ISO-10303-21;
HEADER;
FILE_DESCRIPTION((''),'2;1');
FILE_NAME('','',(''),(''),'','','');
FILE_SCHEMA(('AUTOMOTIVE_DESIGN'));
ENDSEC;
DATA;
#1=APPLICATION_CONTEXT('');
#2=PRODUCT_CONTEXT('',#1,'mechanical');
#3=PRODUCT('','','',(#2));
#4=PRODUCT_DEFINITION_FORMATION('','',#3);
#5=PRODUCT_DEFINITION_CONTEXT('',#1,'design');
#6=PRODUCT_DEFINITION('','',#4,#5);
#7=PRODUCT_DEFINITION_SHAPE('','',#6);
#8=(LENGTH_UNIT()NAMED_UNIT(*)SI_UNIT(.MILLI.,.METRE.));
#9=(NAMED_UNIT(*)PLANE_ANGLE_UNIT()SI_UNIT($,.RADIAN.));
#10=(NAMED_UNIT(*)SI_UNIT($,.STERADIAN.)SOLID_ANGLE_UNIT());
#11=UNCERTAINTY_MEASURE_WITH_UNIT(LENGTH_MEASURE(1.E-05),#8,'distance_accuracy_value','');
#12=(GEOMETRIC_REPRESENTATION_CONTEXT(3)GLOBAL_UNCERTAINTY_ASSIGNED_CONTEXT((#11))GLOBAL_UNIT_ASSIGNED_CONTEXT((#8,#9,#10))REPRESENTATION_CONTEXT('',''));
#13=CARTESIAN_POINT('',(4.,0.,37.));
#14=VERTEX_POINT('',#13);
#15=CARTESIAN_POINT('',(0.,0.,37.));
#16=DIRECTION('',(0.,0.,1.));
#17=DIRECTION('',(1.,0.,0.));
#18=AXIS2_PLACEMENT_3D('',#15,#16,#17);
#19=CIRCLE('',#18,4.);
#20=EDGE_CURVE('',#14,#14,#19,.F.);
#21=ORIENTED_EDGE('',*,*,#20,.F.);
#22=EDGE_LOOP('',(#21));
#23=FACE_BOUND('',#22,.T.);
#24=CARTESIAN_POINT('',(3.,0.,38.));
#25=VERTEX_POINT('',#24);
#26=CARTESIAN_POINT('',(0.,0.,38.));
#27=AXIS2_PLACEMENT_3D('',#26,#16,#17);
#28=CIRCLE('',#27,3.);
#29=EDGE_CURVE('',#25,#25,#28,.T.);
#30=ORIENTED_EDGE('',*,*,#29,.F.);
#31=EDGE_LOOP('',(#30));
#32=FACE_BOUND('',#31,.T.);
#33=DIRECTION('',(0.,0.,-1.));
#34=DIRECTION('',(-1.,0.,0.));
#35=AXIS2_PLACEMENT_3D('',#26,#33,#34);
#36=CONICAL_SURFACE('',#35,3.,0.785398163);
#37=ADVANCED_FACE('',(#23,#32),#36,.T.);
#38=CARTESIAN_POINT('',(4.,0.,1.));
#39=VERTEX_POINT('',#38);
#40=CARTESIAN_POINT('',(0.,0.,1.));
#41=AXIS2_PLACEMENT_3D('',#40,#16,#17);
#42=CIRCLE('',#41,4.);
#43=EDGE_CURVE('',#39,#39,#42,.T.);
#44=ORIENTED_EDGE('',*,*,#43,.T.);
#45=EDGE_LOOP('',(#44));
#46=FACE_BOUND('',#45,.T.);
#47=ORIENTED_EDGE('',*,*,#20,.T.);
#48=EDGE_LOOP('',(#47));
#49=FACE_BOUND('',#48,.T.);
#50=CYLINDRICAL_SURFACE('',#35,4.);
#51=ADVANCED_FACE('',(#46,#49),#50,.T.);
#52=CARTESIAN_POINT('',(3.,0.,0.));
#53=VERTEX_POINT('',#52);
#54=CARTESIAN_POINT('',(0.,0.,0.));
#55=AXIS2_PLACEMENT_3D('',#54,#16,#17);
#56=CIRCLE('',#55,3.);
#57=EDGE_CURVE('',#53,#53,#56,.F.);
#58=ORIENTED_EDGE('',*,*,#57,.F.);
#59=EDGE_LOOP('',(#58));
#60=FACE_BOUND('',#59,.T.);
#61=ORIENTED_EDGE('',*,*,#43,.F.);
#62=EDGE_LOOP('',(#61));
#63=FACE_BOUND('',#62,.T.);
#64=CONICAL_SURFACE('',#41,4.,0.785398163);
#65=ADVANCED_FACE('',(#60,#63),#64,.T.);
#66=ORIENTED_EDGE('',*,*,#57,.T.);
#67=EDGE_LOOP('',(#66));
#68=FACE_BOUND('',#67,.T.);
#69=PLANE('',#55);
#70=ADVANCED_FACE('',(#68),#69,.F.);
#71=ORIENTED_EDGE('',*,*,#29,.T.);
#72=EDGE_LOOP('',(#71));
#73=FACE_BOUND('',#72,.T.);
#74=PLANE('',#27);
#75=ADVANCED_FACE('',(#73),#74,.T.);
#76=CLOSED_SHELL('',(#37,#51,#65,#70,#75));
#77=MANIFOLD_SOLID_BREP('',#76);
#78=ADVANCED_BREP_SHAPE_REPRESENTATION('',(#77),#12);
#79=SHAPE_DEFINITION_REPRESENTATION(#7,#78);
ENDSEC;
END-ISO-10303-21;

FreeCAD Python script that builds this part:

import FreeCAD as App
import Part
import Sketcher

V = App.Vector


def edges_at(feature, points):
    """Names of the edges that pass closest to the given points."""
    edges = feature.Shape.Edges
    near = lambda p: min(range(len(edges)), key=lambda i: edges[i].distToShape(Part.Vertex(*p))[0])
    return sorted({f"Edge{near(p) + 1}" for p in points})

doc = App.newDocument("Part")
body = doc.addObject("PartDesign::Body", "Body")

# Sketch on XY plane
sketch1 = body.newObject("Sketcher::SketchObject", "Sketch")
sketch1.AttachmentSupport = (doc.getObject("XY_Plane"), [""])
sketch1.MapMode = "FlatFace"
sketch1.addGeometry(Part.Circle(V(0, 0, 0), V(0, 0, 1), 4), False)
sketch1.addConstraint(Sketcher.Constraint("Coincident", 0, 3, -1, 1))
sketch1.addConstraint(Sketcher.Constraint("Diameter", 0, 8.0))
pad1 = body.newObject("PartDesign::Pad", "Pad")
pad1.Profile = sketch1
pad1.Length = 38
doc.recompute()

chamfer = body.newObject("PartDesign::Chamfer", "Chamfer")
chamfer.Base = (pad1, edges_at(pad1, [(-4, 0, 0), (-4, 0, 38)]))
chamfer.Size = 1

doc.recompute()
